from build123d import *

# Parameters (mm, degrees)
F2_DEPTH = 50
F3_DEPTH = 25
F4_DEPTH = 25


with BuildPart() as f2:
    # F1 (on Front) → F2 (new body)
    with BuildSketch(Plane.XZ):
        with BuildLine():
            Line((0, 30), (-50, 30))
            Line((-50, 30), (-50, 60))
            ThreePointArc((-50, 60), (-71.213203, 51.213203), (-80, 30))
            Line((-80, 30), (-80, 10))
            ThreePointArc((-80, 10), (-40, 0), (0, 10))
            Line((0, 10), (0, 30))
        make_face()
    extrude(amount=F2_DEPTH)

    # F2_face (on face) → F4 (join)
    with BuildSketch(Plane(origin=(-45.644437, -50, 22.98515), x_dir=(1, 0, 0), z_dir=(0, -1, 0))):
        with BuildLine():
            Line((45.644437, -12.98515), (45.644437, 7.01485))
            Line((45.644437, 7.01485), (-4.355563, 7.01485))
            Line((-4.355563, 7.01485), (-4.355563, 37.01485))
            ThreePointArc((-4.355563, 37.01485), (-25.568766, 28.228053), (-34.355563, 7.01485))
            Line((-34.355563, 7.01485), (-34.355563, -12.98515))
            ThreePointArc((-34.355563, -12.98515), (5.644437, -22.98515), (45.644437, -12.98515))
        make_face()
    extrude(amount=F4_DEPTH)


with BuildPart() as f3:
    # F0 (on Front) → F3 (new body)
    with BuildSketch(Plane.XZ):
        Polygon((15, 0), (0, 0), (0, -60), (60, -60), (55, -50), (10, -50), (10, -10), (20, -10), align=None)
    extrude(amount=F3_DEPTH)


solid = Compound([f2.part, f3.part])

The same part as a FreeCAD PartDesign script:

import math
import FreeCAD as App
import Part
import Sketcher
from FreeCAD import Vector
Q = App.Units.Quantity


def add_polygon(sketch, points):
    """Adds a closed chain of lines whose ends are joined by coincident constraints."""
    first, n = sketch.GeometryCount, len(points)
    for a, b in zip(points, points[1:] + points[:1]):
        sketch.addGeometry(Part.LineSegment(App.Vector(*a, 0), App.Vector(*b, 0)), False)
    for i in range(n):
        sketch.addConstraint(Sketcher.Constraint("Coincident", first + i, 2, first + (i + 1) % n, 1))

doc = App.newDocument("Part")
body = doc.addObject("PartDesign::Body", "Body")

sketch1 = body.newObject("Sketcher::SketchObject", "Sketch")
sketch1.AttachmentSupport = (doc.getObject("XZ_Plane"), [""])
sketch1.MapMode = "FlatFace"
sketch1.addGeometry(Part.LineSegment(Vector(0, 30, 0), Vector(-50, 30, 0)), False)
sketch1.addGeometry(Part.LineSegment(Vector(-50, 30, 0), Vector(-50, 60, 0)), False)
sketch1.addGeometry(Part.ArcOfCircle(Part.Circle(Vector(-49.999999, 29.999999, 0), Vector(0, 0, 1), 30.000001), math.radians(90.000003), math.radians(179.999997)), False)
sketch1.addGeometry(Part.LineSegment(Vector(-80, 30, 0), Vector(-80, 10, 0)), False)
sketch1.addGeometry(Part.ArcOfCircle(Part.Circle(Vector(-40, 85, 0), Vector(0, 0, 1), 85), math.radians(-118.072487), math.radians(-61.927513)), False)
sketch1.addGeometry(Part.LineSegment(Vector(0, 10, 0), Vector(0, 30, 0)), False)
sketch1.addConstraint(Sketcher.Constraint("Coincident", 0, 2, 1, 1))
sketch1.addConstraint(Sketcher.Constraint("Coincident", 1, 2, 2, 1))
sketch1.addConstraint(Sketcher.Constraint("Tangent", 2, 2, 3, 1))
sketch1.addConstraint(Sketcher.Constraint("Coincident", 3, 2, 4, 1))
sketch1.addConstraint(Sketcher.Constraint("Coincident", 4, 2, 5, 1))
sketch1.addConstraint(Sketcher.Constraint("Coincident", 5, 2, 0, 1))
sketch1.addConstraint(Sketcher.Constraint("Horizontal", 0))
sketch1.addConstraint(Sketcher.Constraint("Vertical", 1))
sketch1.addConstraint(Sketcher.Constraint("Vertical", 3))
sketch1.addConstraint(Sketcher.Constraint("Vertical", 5))
sketch1.addConstraint(Sketcher.Constraint("Coincident", 0, 2, 2, 3))
sketch1.addConstraint(Sketcher.Constraint("PointOnObject", 4, 2, -2))
sketch1.addConstraint(Sketcher.Constraint("Horizontal", 3, 2, 4, 2))
sketch1.addConstraint(Sketcher.Constraint("Radius", 2, Q("30.000001 mm")))
sketch1.addConstraint(Sketcher.Constraint("Radius", 4, Q("85 mm")))
sketch1.addConstraint(Sketcher.Constraint("DistanceX", 0, 2, 0, 1, Q("50 mm")))
sketch1.addConstraint(Sketcher.Constraint("DistanceY", 3, 2, 3, 1, Q("20 mm")))
sketch1.addConstraint(Sketcher.Constraint("DistanceY", -1, 1, 2, 3, Q("29.999999 mm")))
pad1 = body.newObject("PartDesign::Pad", "Pad")
pad1.Profile = sketch1
pad1.Length = 50

sketch2 = body.newObject("Sketcher::SketchObject", "Sketch001")
sketch2.AttachmentSupport = (doc.getObject("XZ_Plane"), [""])
sketch2.MapMode = "FlatFace"
sketch2.AttachmentOffset = App.Placement(Vector(0, 0, 50), App.Rotation())
sketch2.addGeometry(Part.LineSegment(Vector(0, 10, 0), Vector(0, 30, 0)), False)
sketch2.addGeometry(Part.LineSegment(Vector(0, 30, 0), Vector(-50, 30, 0)), False)
sketch2.addGeometry(Part.LineSegment(Vector(-50, 30, 0), Vector(-50, 60, 0)), False)
sketch2.addGeometry(Part.ArcOfCircle(Part.Circle(Vector(-49.999999, 29.999999, 0), Vector(0, 0, 1), 30.000001), math.radians(90.000003), math.radians(179.999997)), False)
sketch2.addGeometry(Part.LineSegment(Vector(-80, 30, 0), Vector(-80, 10, 0)), False)
sketch2.addGeometry(Part.ArcOfCircle(Part.Circle(Vector(-40, 85, 0), Vector(0, 0, 1), 85), math.radians(-118.072487), math.radians(-61.927513)), False)
sketch2.addConstraint(Sketcher.Constraint("Coincident", 0, 2, 1, 1))
sketch2.addConstraint(Sketcher.Constraint("Coincident", 1, 2, 2, 1))
sketch2.addConstraint(Sketcher.Constraint("Coincident", 2, 2, 3, 1))
sketch2.addConstraint(Sketcher.Constraint("Tangent", 3, 2, 4, 1))
sketch2.addConstraint(Sketcher.Constraint("Coincident", 4, 2, 5, 1))
sketch2.addConstraint(Sketcher.Constraint("Coincident", 5, 2, 0, 1))
sketch2.addConstraint(Sketcher.Constraint("Vertical", 0))
sketch2.addConstraint(Sketcher.Constraint("Horizontal", 1))
sketch2.addConstraint(Sketcher.Constraint("Vertical", 2))
sketch2.addConstraint(Sketcher.Constraint("Vertical", 4))
sketch2.addConstraint(Sketcher.Constraint("Coincident", 1, 2, 3, 3))
sketch2.addConstraint(Sketcher.Constraint("PointOnObject", 0, 2, -2))
sketch2.addConstraint(Sketcher.Constraint("Horizontal", 4, 2, 5, 2))
sketch2.addConstraint(Sketcher.Constraint("Radius", 3, Q("30.000001 mm")))
sketch2.addConstraint(Sketcher.Constraint("Radius", 5, Q("85 mm")))
sketch2.addConstraint(Sketcher.Constraint("DistanceX", 1, 2, 1, 1, Q("50 mm")))
sketch2.addConstraint(Sketcher.Constraint("DistanceY", 0, 1, 0, 2, Q("20 mm")))
sketch2.addConstraint(Sketcher.Constraint("DistanceY", -1, 1, 3, 3, Q("29.999999 mm")))
pad2 = body.newObject("PartDesign::Pad", "Pad001")
pad2.Profile = sketch2
pad2.Length = 25
body2 = doc.addObject("PartDesign::Body", "Body001")

sketch3 = body2.newObject("Sketcher::SketchObject", "Sketch002")
sketch3.AttachmentSupport = (doc.getObject("XZ_Plane001"), [""])
sketch3.MapMode = "FlatFace"
add_polygon(sketch3, [(15, 0), (0, 0), (0, -60), (60, -60), (55, -50), (10, -50), (10, -10), (20, -10)])
sketch3.addConstraint(Sketcher.Constraint("Horizontal", 0))
sketch3.addConstraint(Sketcher.Constraint("Vertical", 1))
sketch3.addConstraint(Sketcher.Constraint("Horizontal", 2))
sketch3.addConstraint(Sketcher.Constraint("Horizontal", 4))
sketch3.addConstraint(Sketcher.Constraint("Vertical", 5))
sketch3.addConstraint(Sketcher.Constraint("Horizontal", 6))
sketch3.addConstraint(Sketcher.Constraint("Coincident", 0, 2, -1, 1))
sketch3.addConstraint(Sketcher.Constraint("Parallel", 3, 7))
sketch3.addConstraint(Sketcher.Constraint("Equal", 2, 1))
sketch3.addConstraint(Sketcher.Constraint("Equal", 3, 7))
sketch3.addConstraint(Sketcher.Constraint("DistanceX", 0, 2, 0, 1, Q("15 mm")))
sketch3.addConstraint(Sketcher.Constraint("DistanceX", 2, 1, 2, 2, Q("60 mm")))
sketch3.addConstraint(Sketcher.Constraint("DistanceX", 4, 2, 4, 1, Q("45 mm")))
sketch3.addConstraint(Sketcher.Constraint("DistanceX", 6, 1, 6, 2, Q("10 mm")))
sketch3.addConstraint(Sketcher.Constraint("DistanceY", 5, 1, 5, 2, Q("40 mm")))
pad3 = body2.newObject("PartDesign::Pad", "Pad002")
pad3.Profile = sketch3
pad3.Length = 25

doc.recompute()
